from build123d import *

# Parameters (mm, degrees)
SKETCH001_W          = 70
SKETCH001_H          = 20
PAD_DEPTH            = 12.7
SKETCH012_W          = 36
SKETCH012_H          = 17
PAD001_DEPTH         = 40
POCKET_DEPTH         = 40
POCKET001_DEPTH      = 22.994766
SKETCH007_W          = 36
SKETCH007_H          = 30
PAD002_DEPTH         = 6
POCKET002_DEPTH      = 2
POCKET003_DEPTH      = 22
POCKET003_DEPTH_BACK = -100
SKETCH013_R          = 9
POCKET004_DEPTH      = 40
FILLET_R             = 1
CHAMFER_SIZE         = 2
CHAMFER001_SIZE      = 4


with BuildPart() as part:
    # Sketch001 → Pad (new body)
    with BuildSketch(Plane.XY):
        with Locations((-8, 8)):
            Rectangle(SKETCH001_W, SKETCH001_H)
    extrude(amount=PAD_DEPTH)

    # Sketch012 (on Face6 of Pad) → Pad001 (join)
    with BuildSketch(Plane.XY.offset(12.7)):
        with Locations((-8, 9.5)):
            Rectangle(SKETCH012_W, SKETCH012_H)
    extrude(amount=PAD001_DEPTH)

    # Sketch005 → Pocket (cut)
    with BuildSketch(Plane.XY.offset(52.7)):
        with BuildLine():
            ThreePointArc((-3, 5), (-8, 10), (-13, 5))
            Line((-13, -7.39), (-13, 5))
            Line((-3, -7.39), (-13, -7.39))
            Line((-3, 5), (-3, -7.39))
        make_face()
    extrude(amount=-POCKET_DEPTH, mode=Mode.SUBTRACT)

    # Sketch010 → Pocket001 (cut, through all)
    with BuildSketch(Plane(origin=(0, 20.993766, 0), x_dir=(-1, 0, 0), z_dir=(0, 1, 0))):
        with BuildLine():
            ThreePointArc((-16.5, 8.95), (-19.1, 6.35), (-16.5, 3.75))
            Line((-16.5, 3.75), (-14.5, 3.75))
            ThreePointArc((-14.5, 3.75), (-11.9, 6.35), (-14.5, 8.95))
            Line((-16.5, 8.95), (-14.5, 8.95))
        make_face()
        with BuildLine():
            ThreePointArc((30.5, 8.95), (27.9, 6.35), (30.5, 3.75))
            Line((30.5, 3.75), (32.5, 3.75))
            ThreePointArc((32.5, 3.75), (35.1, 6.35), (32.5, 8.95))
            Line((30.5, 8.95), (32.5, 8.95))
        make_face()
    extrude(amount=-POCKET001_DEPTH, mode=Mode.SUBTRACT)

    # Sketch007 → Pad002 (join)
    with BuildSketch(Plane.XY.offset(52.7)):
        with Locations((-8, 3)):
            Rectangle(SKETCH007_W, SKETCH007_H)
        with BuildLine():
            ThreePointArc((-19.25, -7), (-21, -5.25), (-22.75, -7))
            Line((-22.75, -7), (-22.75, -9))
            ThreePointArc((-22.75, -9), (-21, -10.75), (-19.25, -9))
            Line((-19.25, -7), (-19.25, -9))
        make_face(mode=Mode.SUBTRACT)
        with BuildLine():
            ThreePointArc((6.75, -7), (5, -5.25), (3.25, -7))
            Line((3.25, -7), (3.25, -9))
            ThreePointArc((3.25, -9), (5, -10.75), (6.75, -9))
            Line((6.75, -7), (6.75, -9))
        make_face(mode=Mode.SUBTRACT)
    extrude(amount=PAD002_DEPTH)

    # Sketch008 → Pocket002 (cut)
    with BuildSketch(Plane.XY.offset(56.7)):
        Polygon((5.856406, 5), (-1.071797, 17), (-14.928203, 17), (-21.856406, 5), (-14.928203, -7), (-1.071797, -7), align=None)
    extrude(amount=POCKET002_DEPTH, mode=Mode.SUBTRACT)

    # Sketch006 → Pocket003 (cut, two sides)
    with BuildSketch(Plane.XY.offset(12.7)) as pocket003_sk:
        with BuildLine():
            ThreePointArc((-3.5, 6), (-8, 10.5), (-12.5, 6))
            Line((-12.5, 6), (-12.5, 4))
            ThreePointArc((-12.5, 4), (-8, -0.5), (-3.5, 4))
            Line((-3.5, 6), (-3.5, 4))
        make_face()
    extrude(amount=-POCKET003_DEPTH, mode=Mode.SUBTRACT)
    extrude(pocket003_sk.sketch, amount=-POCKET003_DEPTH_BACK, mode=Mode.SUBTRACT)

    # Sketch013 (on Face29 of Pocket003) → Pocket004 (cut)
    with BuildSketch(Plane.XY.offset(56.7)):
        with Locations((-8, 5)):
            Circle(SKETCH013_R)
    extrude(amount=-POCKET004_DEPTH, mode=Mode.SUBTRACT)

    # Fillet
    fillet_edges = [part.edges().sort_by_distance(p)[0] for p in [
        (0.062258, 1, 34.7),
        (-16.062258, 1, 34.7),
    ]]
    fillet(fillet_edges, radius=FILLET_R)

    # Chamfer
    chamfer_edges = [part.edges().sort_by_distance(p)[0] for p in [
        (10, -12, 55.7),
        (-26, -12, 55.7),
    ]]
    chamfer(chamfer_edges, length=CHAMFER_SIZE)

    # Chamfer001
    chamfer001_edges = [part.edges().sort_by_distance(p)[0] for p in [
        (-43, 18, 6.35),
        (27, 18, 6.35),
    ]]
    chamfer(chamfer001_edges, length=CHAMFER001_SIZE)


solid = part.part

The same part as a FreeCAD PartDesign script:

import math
import FreeCAD as App
import Part
import Sketcher

V = App.Vector
Q = App.Units.Quantity


def edges_at(feature, points):
    """Names of the edges that pass closest to the given points."""
    edges = feature.Shape.Edges
    near = lambda p: min(range(len(edges)), key=lambda i: edges[i].distToShape(Part.Vertex(*p))[0])
    return sorted({f"Edge{near(p) + 1}" for p in points})


def add_polygon(sketch, points):
    """Adds a closed chain of lines whose ends are joined by coincident constraints."""
    first, n = sketch.GeometryCount, len(points)
    for a, b in zip(points, points[1:] + points[:1]):
        sketch.addGeometry(Part.LineSegment(App.Vector(*a, 0), App.Vector(*b, 0)), False)
    for i in range(n):
        sketch.addConstraint(Sketcher.Constraint("Coincident", first + i, 2, first + (i + 1) % n, 1))

doc = App.newDocument("Part")
params = doc.addObject("Spreadsheet::Sheet", "Params")
for row, (alias, value) in enumerate([
    ("sketch1_width", "70 mm"),
    ("sketch1_height", "20 mm"),
    ("pad1_length", "12.7 mm"),
    ("sketch2_width", "36 mm"),
    ("sketch2_height", "17 mm"),
    ("pad2_length", "40 mm"),
    ("sketch3_radius", "5 mm"),
    ("sketch3_height", "12.39 mm"),
    ("pocket1_length", "40 mm"),
    ("sketch4_radius", "2.6 mm"),
    ("sketch4_width", "2 mm"),
    ("sketch5_width", "36 mm"),
    ("sketch5_height", "30 mm"),
    ("sketch5_height2", "2 mm"),
    ("sketch5_radius", "1.75 mm"),
    ("pad3_length", "6 mm"),
    ("pocket3_length", "2 mm"),
    ("sketch7_radius", "4.5 mm"),
    ("sketch7_height", "2 mm"),
    ("sketch8_diameter", "18 mm"),
    ("pocket5_length", "40 mm"),
    ("fillet_radius", "1 mm"),
    ("chamfer_size", "2 mm"),
    ("chamfer2_size", "4 mm"),
], start=1):
    params.set(f"A{row}", alias)
    params.set(f"B{row}", "=" + value)
    params.setAlias(f"B{row}", alias)

body = doc.addObject("PartDesign::Body", "Body")

sketch1 = body.newObject("Sketcher::SketchObject", "Sketch")
sketch1.AttachmentSupport = (doc.getObject("XY_Plane"), [""])
sketch1.MapMode = "FlatFace"
add_polygon(sketch1, [(-43, 18), (-43, -2), (27, -2), (27, 18)])
sketch1.addConstraint(Sketcher.Constraint("Vertical", 0))
sketch1.addConstraint(Sketcher.Constraint("Horizontal", 1))
sketch1.addConstraint(Sketcher.Constraint("Vertical", 2))
sketch1.addConstraint(Sketcher.Constraint("Horizontal", 3))
sketch1.addConstraint(Sketcher.Constraint("DistanceX", 1, 1, 1, 2, Q("70 mm")))
sketch1.addConstraint(Sketcher.Constraint("DistanceY", 0, 2, 0, 1, Q("20 mm")))
sketch1.addConstraint(Sketcher.Constraint("DistanceX", 0, 2, -1, 1, Q("43 mm")))
sketch1.addConstraint(Sketcher.Constraint("DistanceY", 0, 2, -1, 1, Q("2 mm")))
sketch1.setExpression("Constraints[8]", "Params.sketch1_width")
sketch1.setExpression("Constraints[9]", "Params.sketch1_height")
pad1 = body.newObject("PartDesign::Pad", "Pad")
pad1.Profile = sketch1
pad1.setExpression("Length", "Params.pad1_length")

sketch2 = body.newObject("Sketcher::SketchObject", "Sketch001")
sketch2.AttachmentSupport = (doc.getObject("XY_Plane"), [""])
sketch2.MapMode = "FlatFace"
sketch2.AttachmentOffset = App.Placement(V(0, 0, 12.7), App.Rotation())
add_polygon(sketch2, [(-26, 18), (-26, 1), (10, 1), (10, 18)])
sketch2.addConstraint(Sketcher.Constraint("Vertical", 0))
sketch2.addConstraint(Sketcher.Constraint("Horizontal", 1))
sketch2.addConstraint(Sketcher.Constraint("Vertical", 2))
sketch2.addConstraint(Sketcher.Constraint("Horizontal", 3))
sketch2.addConstraint(Sketcher.Constraint("DistanceX", 1, 1, 1, 2, Q("36 mm")))
sketch2.addConstraint(Sketcher.Constraint("DistanceY", 0, 2, 0, 1, Q("17 mm")))
sketch2.addConstraint(Sketcher.Constraint("DistanceX", 0, 2, -1, 1, Q("26 mm")))
sketch2.addConstraint(Sketcher.Constraint("DistanceY", -1, 1, 0, 2, Q("1 mm")))
sketch2.setExpression("Constraints[8]", "Params.sketch2_width")
sketch2.setExpression("Constraints[9]", "Params.sketch2_height")
pad2 = body.newObject("PartDesign::Pad", "Pad001")
pad2.Profile = sketch2
pad2.setExpression("Length", "Params.pad2_length")

sketch3 = body.newObject("Sketcher::SketchObject", "Sketch002")
sketch3.AttachmentSupport = (doc.getObject("XY_Plane"), [""])
sketch3.MapMode = "FlatFace"
sketch3.AttachmentOffset = App.Placement(V(0, 0, 52.7), App.Rotation())
sketch3.addGeometry(Part.ArcOfCircle(Part.Circle(V(-8, 5, 0), V(0, 0, 1), 5), math.radians(0), math.radians(180)), False)
sketch3.addGeometry(Part.LineSegment(V(-13, 5, 0), V(-13, -7, 0)), False)
sketch3.addGeometry(Part.LineSegment(V(-13, -7, 0), V(-3, -7, 0)), False)
sketch3.addGeometry(Part.LineSegment(V(-3, -7, 0), V(-3, 5, 0)), False)
sketch3.addConstraint(Sketcher.Constraint("Tangent", 0, 2, 1, 1))
sketch3.addConstraint(Sketcher.Constraint("Coincident", 1, 2, 2, 1))
sketch3.addConstraint(Sketcher.Constraint("Coincident", 2, 2, 3, 1))
sketch3.addConstraint(Sketcher.Constraint("Tangent", 3, 2, 0, 1))
sketch3.addConstraint(Sketcher.Constraint("Vertical", 1))
sketch3.addConstraint(Sketcher.Constraint("Horizontal", 2))
sketch3.addConstraint(Sketcher.Constraint("Vertical", 3))
sketch3.addConstraint(Sketcher.Constraint("Radius", 0, Q("5 mm")))
sketch3.addConstraint(Sketcher.Constraint("DistanceX", 0, 3, -1, 1, Q("8 mm")))
sketch3.addConstraint(Sketcher.Constraint("DistanceY", -1, 1, 0, 3, Q("5 mm")))
sketch3.addConstraint(Sketcher.Constraint("DistanceY", 1, 2, 1, 1, Q("12.39 mm")))
sketch3.setExpression("Constraints[7]", "Params.sketch3_radius")
sketch3.setExpression("Constraints[10]", "Params.sketch3_height")
pocket1 = body.newObject("PartDesign::Pocket", "Pocket")
pocket1.Profile = sketch3
pocket1.setExpression("Length", "Params.pocket1_length")

sketch4 = body.newObject("Sketcher::SketchObject", "Sketch003")
sketch4.AttachmentSupport = (doc.getObject("XZ_Plane"), [""])
sketch4.MapMode = "FlatFace"
sketch4.AttachmentOffset = App.Placement(V(0, 0, -20.993766), App.Rotation())
sketch4.addGeometry(Part.ArcOfCircle(Part.Circle(V(16.5, 6.3, 0), V(0, 0, 1), 2.6), math.radians(-90), math.radians(90)), False)
sketch4.addGeometry(Part.LineSegment(V(16.5, 3.8, 0), V(14.5, 3.8, 0)), False)
sketch4.addGeometry(Part.ArcOfCircle(Part.Circle(V(14.5, 6.3, 0), V(0, 0, 1), 2.6), math.radians(90), math.radians(270)), False)
sketch4.addGeometry(Part.LineSegment(V(14.5, 8.9, 0), V(16.5, 8.9, 0)), False)
sketch4.addGeometry(Part.ArcOfCircle(Part.Circle(V(-30.5, 6.3, 0), V(0, 0, 1), 2.6), math.radians(-90), math.radians(90)), False)
sketch4.addGeometry(Part.LineSegment(V(-30.5, 3.8, 0), V(-32.5, 3.8, 0)), False)
sketch4.addGeometry(Part.ArcOfCircle(Part.Circle(V(-32.5, 6.3, 0), V(0, 0, 1), 2.6), math.radians(90), math.radians(270)), False)
sketch4.addGeometry(Part.LineSegment(V(-32.5, 8.9, 0), V(-30.5, 8.9, 0)), False)
sketch4.addConstraint(Sketcher.Constraint("Tangent", 0, 1, 1, 1))
sketch4.addConstraint(Sketcher.Constraint("Tangent", 1, 2, 2, 2))
sketch4.addConstraint(Sketcher.Constraint("Tangent", 2, 1, 3, 1))
sketch4.addConstraint(Sketcher.Constraint("Tangent", 3, 2, 0, 2))
sketch4.addConstraint(Sketcher.Constraint("Tangent", 4, 1, 5, 1))
sketch4.addConstraint(Sketcher.Constraint("Tangent", 5, 2, 6, 2))
sketch4.addConstraint(Sketcher.Constraint("Tangent", 6, 1, 7, 1))
sketch4.addConstraint(Sketcher.Constraint("Tangent", 7, 2, 4, 2))
sketch4.addConstraint(Sketcher.Constraint("Horizontal", 1))
sketch4.addConstraint(Sketcher.Constraint("Horizontal", 3))
sketch4.addConstraint(Sketcher.Constraint("Horizontal", 5))
sketch4.addConstraint(Sketcher.Constraint("Horizontal", 7))
sketch4.addConstraint(Sketcher.Constraint("Equal", 2, 4))
sketch4.addConstraint(Sketcher.Constraint("Horizontal", 2, 3, 4, 3))
sketch4.addConstraint(Sketcher.Constraint("Equal", 3, 5))
sketch4.addConstraint(Sketcher.Constraint("Radius", 0, Q("2.6 mm")))
sketch4.addConstraint(Sketcher.Constraint("DistanceX", 1, 2, 1, 1, Q("2 mm")))
sketch4.addConstraint(Sketcher.Constraint("DistanceX", 4, 3, 2, 3, Q("45 mm")))
sketch4.addConstraint(Sketcher.Constraint("DistanceX", -1, 1, 0, 3, Q("16.5 mm")))
sketch4.addConstraint(Sketcher.Constraint("DistanceY", -1, 1, 0, 3, Q("6.35 mm")))
sketch4.setExpression("Constraints[15]", "Params.sketch4_radius")
sketch4.setExpression("Constraints[16]", "Params.sketch4_width")
pocket2 = body.newObject("PartDesign::Pocket", "Pocket001")
pocket2.Profile = sketch4
pocket2.Type = "ThroughAll"
pocket2.Reversed = True

sketch5 = body.newObject("Sketcher::SketchObject", "Sketch004")
sketch5.AttachmentSupport = (doc.getObject("XY_Plane"), [""])
sketch5.MapMode = "FlatFace"
sketch5.AttachmentOffset = App.Placement(V(0, 0, 52.7), App.Rotation())
add_polygon(sketch5, [(-26, 18), (-26, -12), (10, -12), (10, 18)])
sketch5.addGeometry(Part.ArcOfCircle(Part.Circle(V(-21, -7, 0), V(0, 0, 1), 1.8), math.radians(0), math.radians(180)), False)
sketch5.addGeometry(Part.LineSegment(V(-19.2, -7, 0), V(-19.2, -9, 0)), False)
sketch5.addGeometry(Part.ArcOfCircle(Part.Circle(V(-21, -9, 0), V(0, 0, 1), 1.8), math.radians(180), math.radians(360)), False)
sketch5.addGeometry(Part.LineSegment(V(-22.8, -9, 0), V(-22.8, -7, 0)), False)
sketch5.addGeometry(Part.ArcOfCircle(Part.Circle(V(5, -7, 0), V(0, 0, 1), 1.8), math.radians(0), math.radians(180)), False)
sketch5.addGeometry(Part.LineSegment(V(6.8, -7, 0), V(6.8, -9, 0)), False)
sketch5.addGeometry(Part.ArcOfCircle(Part.Circle(V(5, -9, 0), V(0, 0, 1), 1.8), math.radians(180), math.radians(360)), False)
sketch5.addGeometry(Part.LineSegment(V(3.2, -9, 0), V(3.2, -7, 0)), False)
sketch5.addConstraint(Sketcher.Constraint("Tangent", 4, 1, 5, 1))
sketch5.addConstraint(Sketcher.Constraint("Tangent", 5, 2, 6, 2))
sketch5.addConstraint(Sketcher.Constraint("Tangent", 6, 1, 7, 1))
sketch5.addConstraint(Sketcher.Constraint("Tangent", 7, 2, 4, 2))
sketch5.addConstraint(Sketcher.Constraint("Tangent", 8, 1, 9, 1))
sketch5.addConstraint(Sketcher.Constraint("Tangent", 9, 2, 10, 2))
sketch5.addConstraint(Sketcher.Constraint("Tangent", 10, 1, 11, 1))
sketch5.addConstraint(Sketcher.Constraint("Tangent", 11, 2, 8, 2))
sketch5.addConstraint(Sketcher.Constraint("Vertical", 0))
sketch5.addConstraint(Sketcher.Constraint("Horizontal", 1))
sketch5.addConstraint(Sketcher.Constraint("Vertical", 2))
sketch5.addConstraint(Sketcher.Constraint("Horizontal", 3))
sketch5.addConstraint(Sketcher.Constraint("Vertical", 5))
sketch5.addConstraint(Sketcher.Constraint("Vertical", 7))
sketch5.addConstraint(Sketcher.Constraint("Vertical", 9))
sketch5.addConstraint(Sketcher.Constraint("Vertical", 11))
sketch5.addConstraint(Sketcher.Constraint("Equal", 6, 8))
sketch5.addConstraint(Sketcher.Constraint("Horizontal", 4, 3, 8, 3))
sketch5.addConstraint(Sketcher.Constraint("Horizontal", 6, 3, 10, 3))
sketch5.addConstraint(Sketcher.Constraint("DistanceX", 1, 1, 1, 2, Q("36 mm")))
sketch5.addConstraint(Sketcher.Constraint("DistanceY", 0, 2, 0, 1, Q("30 mm")))
sketch5.addConstraint(Sketcher.Constraint("DistanceY", 5, 2, 5, 1, Q("2 mm")))
sketch5.addConstraint(Sketcher.Constraint("Radius", 4, Q("1.75 mm")))
sketch5.addConstraint(Sketcher.Constraint("DistanceX", 4, 3, -1, 1, Q("21 mm")))
sketch5.addConstraint(Sketcher.Constraint("DistanceY", 4, 3, -1, 1, Q("7 mm")))
sketch5.addConstraint(Sketcher.Constraint("DistanceX", -1, 1, 8, 3, Q("5 mm")))
sketch5.addConstraint(Sketcher.Constraint("DistanceX", 0, 2, -1, 1, Q("26 mm")))
sketch5.addConstraint(Sketcher.Constraint("DistanceY", 0, 2, -1, 1, Q("12 mm")))
sketch5.setExpression("Constraints[23]", "Params.sketch5_width")
sketch5.setExpression("Constraints[24]", "Params.sketch5_height")
sketch5.setExpression("Constraints[25]", "Params.sketch5_height2")
sketch5.setExpression("Constraints[26]", "Params.sketch5_radius")
pad3 = body.newObject("PartDesign::Pad", "Pad002")
pad3.Profile = sketch5
pad3.setExpression("Length", "Params.pad3_length")

sketch6 = body.newObject("Sketcher::SketchObject", "Sketch005")
sketch6.AttachmentSupport = (doc.getObject("XY_Plane"), [""])
sketch6.MapMode = "FlatFace"
sketch6.AttachmentOffset = App.Placement(V(0, 0, 56.7), App.Rotation())
add_polygon(sketch6, [(6, 5), (-1, 17), (-15, 17), (-22, 5), (-15, -7), (-1, -7)])
sketch6.addConstraint(Sketcher.Constraint("Horizontal", 1))
sketch6.addConstraint(Sketcher.Constraint("Horizontal", 4))
sketch6.addConstraint(Sketcher.Constraint("Parallel", 0, 3))
sketch6.addConstraint(Sketcher.Constraint("Parallel", 2, 5))
sketch6.addConstraint(Sketcher.Constraint("Horizontal", 2, 2, 5, 2))
sketch6.addConstraint(Sketcher.Constraint("Vertical", 1, 2, 3, 2))
sketch6.addConstraint(Sketcher.Constraint("Vertical", 0, 2, 4, 2))
sketch6.addConstraint(Sketcher.Constraint("Angle", 0, Q("119.999999 deg")))
sketch6.addConstraint(Sketcher.Constraint("DistanceY", -1, 1, 0, 2, Q("17 mm")))
sketch6.addConstraint(Sketcher.Constraint("DistanceY", -1, 1, 2, 2, Q("5 mm")))
sketch6.addConstraint(Sketcher.Constraint("DistanceX", 1, 2, 1, 1, Q("13.856406 mm")))
sketch6.addConstraint(Sketcher.Constraint("DistanceX", 0, 2, -1, 1, Q("1.071797 mm")))
pocket3 = body.newObject("PartDesign::Pocket", "Pocket002")
pocket3.Profile = sketch6
pocket3.setExpression("Length", "Params.pocket3_length")
pocket3.Reversed = True

sketch7 = body.newObject("Sketcher::SketchObject", "Sketch006")
sketch7.AttachmentSupport = (doc.getObject("XY_Plane"), [""])
sketch7.MapMode = "FlatFace"
sketch7.AttachmentOffset = App.Placement(V(0, 0, 12.7), App.Rotation())
sketch7.addGeometry(Part.ArcOfCircle(Part.Circle(V(-8, 6, 0), V(0, 0, 1), 4.5), math.radians(0), math.radians(180)), False)
sketch7.addGeometry(Part.LineSegment(V(-12.5, 6, 0), V(-12.5, 4, 0)), False)
sketch7.addGeometry(Part.ArcOfCircle(Part.Circle(V(-8, 4, 0), V(0, 0, 1), 4.5), math.radians(180), math.radians(360)), False)
sketch7.addGeometry(Part.LineSegment(V(-3.5, 4, 0), V(-3.5, 6, 0)), False)
sketch7.addConstraint(Sketcher.Constraint("Tangent", 0, 2, 1, 1))
sketch7.addConstraint(Sketcher.Constraint("Tangent", 1, 2, 2, 1))
sketch7.addConstraint(Sketcher.Constraint("Tangent", 2, 2, 3, 1))
sketch7.addConstraint(Sketcher.Constraint("Tangent", 3, 2, 0, 1))
sketch7.addConstraint(Sketcher.Constraint("Vertical", 1))
sketch7.addConstraint(Sketcher.Constraint("Vertical", 3))
sketch7.addConstraint(Sketcher.Constraint("Radius", 0, Q("4.5 mm")))
sketch7.addConstraint(Sketcher.Constraint("DistanceY", 1, 2, 1, 1, Q("2 mm")))
sketch7.addConstraint(Sketcher.Constraint("DistanceX", 0, 3, -1, 1, Q("8 mm")))
sketch7.addConstraint(Sketcher.Constraint("DistanceY", -1, 1, 0, 3, Q("6 mm")))
sketch7.setExpression("Constraints[6]", "Params.sketch7_radius")
sketch7.setExpression("Constraints[7]", "Params.sketch7_height")
pocket4 = body.newObject("PartDesign::Pocket", "Pocket003")
pocket4.Profile = sketch7
pocket4.Type = "ThroughAll"
pocket4.Midplane = True

sketch8 = body.newObject("Sketcher::SketchObject", "Sketch007")
sketch8.AttachmentSupport = (doc.getObject("XY_Plane"), [""])
sketch8.MapMode = "FlatFace"
sketch8.AttachmentOffset = App.Placement(V(0, 0, 56.7), App.Rotation())
sketch8.addGeometry(Part.Circle(V(-8, 5, 0), V(0, 0, 1), 9), False)
sketch8.addConstraint(Sketcher.Constraint("Diameter", 0, Q("18 mm")))
sketch8.addConstraint(Sketcher.Constraint("DistanceX", 0, 3, -1, 1, Q("8 mm")))
sketch8.addConstraint(Sketcher.Constraint("DistanceY", -1, 1, 0, 3, Q("5 mm")))
sketch8.setExpression("Constraints[0]", "Params.sketch8_diameter")
pocket5 = body.newObject("PartDesign::Pocket", "Pocket004")
pocket5.Profile = sketch8
pocket5.setExpression("Length", "Params.pocket5_length")
doc.recompute()

fillet = body.newObject("PartDesign::Fillet", "Fillet")
fillet.Base = (pocket5, edges_at(pocket5, [(0.062, 1, 34.7), (-16.062, 1, 34.7)]))
fillet.setExpression("Radius", "Params.fillet_radius")
doc.recompute()

chamfer = body.newObject("PartDesign::Chamfer", "Chamfer")
chamfer.Base = (fillet, edges_at(fillet, [(10, -12, 55.7), (-26, -12, 55.7)]))
chamfer.setExpression("Size", "Params.chamfer_size")
doc.recompute()

chamfer2 = body.newObject("PartDesign::Chamfer", "Chamfer001")
chamfer2.Base = (chamfer, edges_at(chamfer, [(-43, 18, 6.35), (27, 18, 6.35)]))
chamfer2.setExpression("Size", "Params.chamfer2_size")

doc.recompute()
